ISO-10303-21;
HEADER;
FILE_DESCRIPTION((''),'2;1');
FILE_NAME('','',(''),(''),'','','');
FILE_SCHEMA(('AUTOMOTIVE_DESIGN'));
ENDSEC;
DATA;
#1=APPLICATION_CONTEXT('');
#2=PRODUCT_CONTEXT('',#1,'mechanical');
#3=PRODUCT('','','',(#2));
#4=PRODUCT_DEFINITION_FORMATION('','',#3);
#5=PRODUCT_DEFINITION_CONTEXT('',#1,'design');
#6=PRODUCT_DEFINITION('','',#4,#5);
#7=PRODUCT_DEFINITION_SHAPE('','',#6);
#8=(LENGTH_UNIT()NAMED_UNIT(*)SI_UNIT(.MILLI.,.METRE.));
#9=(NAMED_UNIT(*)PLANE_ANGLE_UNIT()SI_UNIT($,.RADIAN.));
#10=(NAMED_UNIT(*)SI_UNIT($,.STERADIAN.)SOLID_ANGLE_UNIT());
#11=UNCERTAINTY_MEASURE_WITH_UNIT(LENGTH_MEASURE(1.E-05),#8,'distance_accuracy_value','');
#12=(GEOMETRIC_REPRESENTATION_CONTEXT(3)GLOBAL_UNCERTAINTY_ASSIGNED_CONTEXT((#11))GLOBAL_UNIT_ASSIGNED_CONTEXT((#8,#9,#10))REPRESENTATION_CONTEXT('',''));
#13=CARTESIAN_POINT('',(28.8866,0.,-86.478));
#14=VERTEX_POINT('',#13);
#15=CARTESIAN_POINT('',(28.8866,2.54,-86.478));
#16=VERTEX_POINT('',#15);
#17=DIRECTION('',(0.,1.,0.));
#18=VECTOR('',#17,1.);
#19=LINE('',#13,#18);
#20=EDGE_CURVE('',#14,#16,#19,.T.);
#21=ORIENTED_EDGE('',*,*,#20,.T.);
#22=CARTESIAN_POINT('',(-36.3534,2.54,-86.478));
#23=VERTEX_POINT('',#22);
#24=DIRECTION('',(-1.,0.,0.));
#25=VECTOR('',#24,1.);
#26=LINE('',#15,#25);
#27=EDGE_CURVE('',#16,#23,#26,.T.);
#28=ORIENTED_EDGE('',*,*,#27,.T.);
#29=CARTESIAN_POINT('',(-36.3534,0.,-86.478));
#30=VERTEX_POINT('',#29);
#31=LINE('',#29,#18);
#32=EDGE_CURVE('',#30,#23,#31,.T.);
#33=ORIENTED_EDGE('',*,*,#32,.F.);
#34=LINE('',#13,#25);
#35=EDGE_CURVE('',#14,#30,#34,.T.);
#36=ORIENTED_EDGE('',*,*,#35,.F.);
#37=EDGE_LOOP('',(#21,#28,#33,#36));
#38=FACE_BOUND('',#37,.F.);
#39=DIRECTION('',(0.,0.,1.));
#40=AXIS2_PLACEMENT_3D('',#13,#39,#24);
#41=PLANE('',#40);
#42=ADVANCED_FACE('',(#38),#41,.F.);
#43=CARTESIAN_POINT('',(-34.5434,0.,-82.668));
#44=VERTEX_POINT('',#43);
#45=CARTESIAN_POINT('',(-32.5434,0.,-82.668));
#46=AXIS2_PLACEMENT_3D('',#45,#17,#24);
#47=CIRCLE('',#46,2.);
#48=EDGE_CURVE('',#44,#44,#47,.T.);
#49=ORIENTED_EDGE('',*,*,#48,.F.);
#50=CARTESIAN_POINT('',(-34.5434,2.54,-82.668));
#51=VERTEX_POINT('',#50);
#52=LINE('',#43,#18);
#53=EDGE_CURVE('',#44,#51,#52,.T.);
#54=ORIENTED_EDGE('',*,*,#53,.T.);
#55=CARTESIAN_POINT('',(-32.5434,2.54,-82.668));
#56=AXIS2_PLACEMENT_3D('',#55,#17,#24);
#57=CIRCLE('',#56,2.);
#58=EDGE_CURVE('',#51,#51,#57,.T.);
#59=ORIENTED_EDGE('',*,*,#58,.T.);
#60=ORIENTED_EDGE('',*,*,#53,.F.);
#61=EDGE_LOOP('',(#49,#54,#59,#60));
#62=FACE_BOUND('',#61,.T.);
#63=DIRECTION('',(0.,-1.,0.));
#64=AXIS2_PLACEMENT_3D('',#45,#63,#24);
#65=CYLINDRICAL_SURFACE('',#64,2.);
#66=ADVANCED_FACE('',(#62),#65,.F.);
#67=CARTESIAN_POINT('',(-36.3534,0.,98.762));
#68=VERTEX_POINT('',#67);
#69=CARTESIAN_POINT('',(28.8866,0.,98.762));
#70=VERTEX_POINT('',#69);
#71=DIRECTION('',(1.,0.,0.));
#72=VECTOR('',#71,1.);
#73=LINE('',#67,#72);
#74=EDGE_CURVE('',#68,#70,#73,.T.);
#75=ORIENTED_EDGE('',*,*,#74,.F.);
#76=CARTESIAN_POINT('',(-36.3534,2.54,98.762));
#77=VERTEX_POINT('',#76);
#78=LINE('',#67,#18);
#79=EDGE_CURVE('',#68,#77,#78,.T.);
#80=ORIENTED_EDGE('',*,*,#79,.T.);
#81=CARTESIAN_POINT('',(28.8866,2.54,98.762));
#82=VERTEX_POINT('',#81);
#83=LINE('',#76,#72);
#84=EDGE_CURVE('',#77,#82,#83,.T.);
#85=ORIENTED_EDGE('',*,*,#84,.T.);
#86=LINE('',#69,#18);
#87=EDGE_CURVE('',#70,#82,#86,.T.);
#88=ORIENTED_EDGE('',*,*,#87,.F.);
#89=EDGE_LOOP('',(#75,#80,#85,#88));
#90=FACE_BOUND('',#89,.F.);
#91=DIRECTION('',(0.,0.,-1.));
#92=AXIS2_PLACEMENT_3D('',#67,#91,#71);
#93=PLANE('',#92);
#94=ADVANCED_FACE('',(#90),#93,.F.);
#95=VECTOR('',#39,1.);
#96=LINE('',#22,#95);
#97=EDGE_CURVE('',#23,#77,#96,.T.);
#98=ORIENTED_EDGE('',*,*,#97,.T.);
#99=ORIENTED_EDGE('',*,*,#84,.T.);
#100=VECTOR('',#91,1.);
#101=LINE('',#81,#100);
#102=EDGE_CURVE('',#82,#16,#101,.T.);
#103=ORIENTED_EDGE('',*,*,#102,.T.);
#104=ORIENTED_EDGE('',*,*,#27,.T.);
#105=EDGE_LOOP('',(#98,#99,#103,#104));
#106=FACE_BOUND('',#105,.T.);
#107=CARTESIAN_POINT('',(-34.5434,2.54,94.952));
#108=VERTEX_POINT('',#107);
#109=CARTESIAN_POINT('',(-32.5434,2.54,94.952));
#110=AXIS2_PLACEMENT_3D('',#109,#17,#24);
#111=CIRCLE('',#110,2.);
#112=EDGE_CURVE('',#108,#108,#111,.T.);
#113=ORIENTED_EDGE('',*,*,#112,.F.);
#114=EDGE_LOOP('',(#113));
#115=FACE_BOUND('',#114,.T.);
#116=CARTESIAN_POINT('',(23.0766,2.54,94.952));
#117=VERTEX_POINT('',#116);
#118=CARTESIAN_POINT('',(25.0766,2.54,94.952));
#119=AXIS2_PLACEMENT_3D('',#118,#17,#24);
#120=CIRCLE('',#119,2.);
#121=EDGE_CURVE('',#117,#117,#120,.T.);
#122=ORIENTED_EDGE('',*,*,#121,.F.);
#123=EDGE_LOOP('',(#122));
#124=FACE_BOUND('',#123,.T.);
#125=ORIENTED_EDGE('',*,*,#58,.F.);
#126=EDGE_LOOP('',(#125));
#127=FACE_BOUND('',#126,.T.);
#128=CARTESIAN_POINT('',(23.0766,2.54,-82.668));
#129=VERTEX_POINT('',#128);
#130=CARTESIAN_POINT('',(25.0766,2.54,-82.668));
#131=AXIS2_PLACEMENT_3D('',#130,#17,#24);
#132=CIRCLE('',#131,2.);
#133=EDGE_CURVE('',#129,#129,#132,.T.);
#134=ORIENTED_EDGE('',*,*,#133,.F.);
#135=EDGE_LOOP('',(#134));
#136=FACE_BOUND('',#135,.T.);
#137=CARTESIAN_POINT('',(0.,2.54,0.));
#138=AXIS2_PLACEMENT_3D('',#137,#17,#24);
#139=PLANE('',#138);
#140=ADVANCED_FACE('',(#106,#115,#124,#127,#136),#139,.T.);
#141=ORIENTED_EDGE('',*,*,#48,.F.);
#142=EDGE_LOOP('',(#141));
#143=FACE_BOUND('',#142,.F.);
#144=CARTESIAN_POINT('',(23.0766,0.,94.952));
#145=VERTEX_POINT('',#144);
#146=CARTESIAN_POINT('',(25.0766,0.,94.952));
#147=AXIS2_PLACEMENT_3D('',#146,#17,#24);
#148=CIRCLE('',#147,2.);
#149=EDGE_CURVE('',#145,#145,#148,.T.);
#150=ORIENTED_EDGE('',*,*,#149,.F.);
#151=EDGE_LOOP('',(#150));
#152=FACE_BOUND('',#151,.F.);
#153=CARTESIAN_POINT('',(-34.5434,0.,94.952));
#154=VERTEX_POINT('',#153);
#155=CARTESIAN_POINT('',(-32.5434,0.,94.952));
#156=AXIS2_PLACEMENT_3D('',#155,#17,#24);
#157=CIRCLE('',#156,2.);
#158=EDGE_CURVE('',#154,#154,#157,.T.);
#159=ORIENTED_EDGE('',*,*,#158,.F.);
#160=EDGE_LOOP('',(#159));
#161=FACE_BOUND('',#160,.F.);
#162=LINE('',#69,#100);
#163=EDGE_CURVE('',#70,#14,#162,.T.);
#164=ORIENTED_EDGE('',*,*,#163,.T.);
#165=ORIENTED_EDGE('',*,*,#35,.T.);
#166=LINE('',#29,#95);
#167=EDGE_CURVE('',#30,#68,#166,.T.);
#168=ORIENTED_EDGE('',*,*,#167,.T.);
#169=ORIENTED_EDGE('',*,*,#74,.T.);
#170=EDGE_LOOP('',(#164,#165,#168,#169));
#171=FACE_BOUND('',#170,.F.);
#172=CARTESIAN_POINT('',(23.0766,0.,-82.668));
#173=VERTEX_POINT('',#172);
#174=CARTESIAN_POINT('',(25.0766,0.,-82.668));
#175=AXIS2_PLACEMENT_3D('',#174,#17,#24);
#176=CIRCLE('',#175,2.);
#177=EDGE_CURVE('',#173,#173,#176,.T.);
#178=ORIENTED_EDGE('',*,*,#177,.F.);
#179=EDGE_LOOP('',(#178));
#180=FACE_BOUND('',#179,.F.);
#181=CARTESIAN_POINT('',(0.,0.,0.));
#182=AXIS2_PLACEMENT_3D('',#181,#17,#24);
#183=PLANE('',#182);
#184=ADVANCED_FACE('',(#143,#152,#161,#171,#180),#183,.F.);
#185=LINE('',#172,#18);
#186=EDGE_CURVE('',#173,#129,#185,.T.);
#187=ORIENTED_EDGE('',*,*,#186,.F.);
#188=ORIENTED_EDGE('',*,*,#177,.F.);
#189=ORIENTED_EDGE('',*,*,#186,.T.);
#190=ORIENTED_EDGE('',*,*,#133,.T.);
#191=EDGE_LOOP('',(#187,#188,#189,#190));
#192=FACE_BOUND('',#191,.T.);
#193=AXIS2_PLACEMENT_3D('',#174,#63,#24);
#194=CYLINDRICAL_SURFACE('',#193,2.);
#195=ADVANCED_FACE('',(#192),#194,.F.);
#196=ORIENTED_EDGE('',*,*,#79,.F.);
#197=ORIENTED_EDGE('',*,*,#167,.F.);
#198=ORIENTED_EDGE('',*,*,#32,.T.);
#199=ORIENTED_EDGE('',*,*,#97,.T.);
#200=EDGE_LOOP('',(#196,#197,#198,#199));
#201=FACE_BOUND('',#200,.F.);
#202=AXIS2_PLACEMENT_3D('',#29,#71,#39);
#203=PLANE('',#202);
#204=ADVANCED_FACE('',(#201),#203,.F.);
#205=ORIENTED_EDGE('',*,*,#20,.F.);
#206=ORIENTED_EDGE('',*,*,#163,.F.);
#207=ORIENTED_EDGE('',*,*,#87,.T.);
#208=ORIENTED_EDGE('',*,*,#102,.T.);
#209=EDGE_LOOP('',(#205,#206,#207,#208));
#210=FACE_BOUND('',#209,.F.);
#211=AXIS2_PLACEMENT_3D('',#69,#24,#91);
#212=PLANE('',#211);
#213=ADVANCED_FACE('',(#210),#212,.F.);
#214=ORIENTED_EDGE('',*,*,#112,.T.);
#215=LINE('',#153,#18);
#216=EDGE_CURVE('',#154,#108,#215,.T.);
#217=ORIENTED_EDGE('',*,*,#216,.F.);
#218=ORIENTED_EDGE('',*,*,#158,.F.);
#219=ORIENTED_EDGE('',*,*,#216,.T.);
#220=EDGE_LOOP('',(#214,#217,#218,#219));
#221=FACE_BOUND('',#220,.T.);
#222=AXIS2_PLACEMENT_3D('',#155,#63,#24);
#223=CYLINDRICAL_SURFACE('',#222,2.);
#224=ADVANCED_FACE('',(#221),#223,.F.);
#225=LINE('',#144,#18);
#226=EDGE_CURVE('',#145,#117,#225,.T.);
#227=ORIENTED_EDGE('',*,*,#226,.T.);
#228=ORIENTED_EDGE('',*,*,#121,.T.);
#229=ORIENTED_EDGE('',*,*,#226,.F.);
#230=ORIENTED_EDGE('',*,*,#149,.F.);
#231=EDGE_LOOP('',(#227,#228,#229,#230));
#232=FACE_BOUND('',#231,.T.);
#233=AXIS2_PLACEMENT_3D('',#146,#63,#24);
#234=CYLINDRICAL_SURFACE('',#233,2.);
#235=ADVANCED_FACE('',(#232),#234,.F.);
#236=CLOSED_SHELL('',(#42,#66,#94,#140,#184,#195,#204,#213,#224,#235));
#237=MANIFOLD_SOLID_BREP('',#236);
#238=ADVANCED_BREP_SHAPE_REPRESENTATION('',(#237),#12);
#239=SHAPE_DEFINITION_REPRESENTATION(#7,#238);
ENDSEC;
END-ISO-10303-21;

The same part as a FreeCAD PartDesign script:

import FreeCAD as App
import Part
import Sketcher

V = App.Vector

doc = App.newDocument("Part")
params = doc.addObject("Spreadsheet::Sheet", "Params")
for row, (alias, value) in enumerate([
    ("sketch1_diameter", "4 mm"),
    ("sketch1_height", "185.24 mm"),
    ("sketch1_width", "65.24 mm"),
    ("pad1_length", "2.54 mm"),
], start=1):
    params.set(f"A{row}", alias)
    params.set(f"B{row}", "=" + value)
    params.setAlias(f"B{row}", alias)

body = doc.addObject("PartDesign::Body", "Body")

# Sketch on XZ plane
sketch1 = doc.addObject("Sketcher::SketchObject", "Sketch")
body.addObject(sketch1)
sketch1.AttachmentSupport = (doc.XZ_Plane, [""])
sketch1.MapMode = "FlatFace"
sketch1.addGeometry(Part.LineSegment(V(-36.3534, -86.478, 0), V(-36.3534, 98.762, 0)), False)
sketch1.addGeometry(Part.LineSegment(V(-36.3534, 98.762, 0), V(28.8866, 98.762, 0)), False)
sketch1.addGeometry(Part.LineSegment(V(28.8866, 98.762, 0), V(28.8866, -86.478, 0)), False)
sketch1.addGeometry(Part.LineSegment(V(28.8866, -86.478, 0), V(-36.3534, -86.478, 0)), False)
sketch1.addGeometry(Part.Circle(V(25.0766, -82.668, 0), V(0, 0, 1), 2), False)
sketch1.addGeometry(Part.Circle(V(-32.5434, -82.668, 0), V(0, 0, 1), 2), False)
sketch1.addGeometry(Part.Circle(V(25.0766, 94.952, 0), V(0, 0, 1), 2), False)
sketch1.addGeometry(Part.Circle(V(-32.5434, 94.952, 0), V(0, 0, 1), 2), False)
sketch1.addConstraint(Sketcher.Constraint("Coincident", 0, 2, 1, 1))
sketch1.addConstraint(Sketcher.Constraint("Coincident", 1, 2, 2, 1))
sketch1.addConstraint(Sketcher.Constraint("Coincident", 2, 2, 3, 1))
sketch1.addConstraint(Sketcher.Constraint("Coincident", 3, 2, 0, 1))
sketch1.addConstraint(Sketcher.Constraint("Vertical", 0))
sketch1.addConstraint(Sketcher.Constraint("Horizontal", 1))
sketch1.addConstraint(Sketcher.Constraint("Vertical", 2))
sketch1.addConstraint(Sketcher.Constraint("Horizontal", 3))
sketch1.addConstraint(Sketcher.Constraint("Equal", 4, 5))
sketch1.addConstraint(Sketcher.Constraint("Equal", 5, 6))
sketch1.addConstraint(Sketcher.Constraint("Equal", 6, 7))
sketch1.addConstraint(Sketcher.Constraint("Horizontal", 4, 3, 5, 3))
sketch1.addConstraint(Sketcher.Constraint("Horizontal", 6, 3, 7, 3))
sketch1.addConstraint(Sketcher.Constraint("Vertical", 4, 3, 6, 3))
sketch1.addConstraint(Sketcher.Constraint("Vertical", 5, 3, 7, 3))
sketch1.addConstraint(Sketcher.Constraint("Diameter", 4, 4.0))
sketch1.addConstraint(Sketcher.Constraint("DistanceY", 0, 1, 0, 2, 185.24))
sketch1.addConstraint(Sketcher.Constraint("DistanceX", 0, 2, 7, 3, 3.81))
sketch1.addConstraint(Sketcher.Constraint("DistanceY", 7, 3, 0, 2, 3.81))
sketch1.addConstraint(Sketcher.Constraint("DistanceX", 6, 3, 1, 2, 3.81))
sketch1.addConstraint(Sketcher.Constraint("DistanceY", 2, 2, 4, 3, 3.81))
sketch1.addConstraint(Sketcher.Constraint("DistanceX", 1, 1, 1, 2, 65.24))
sketch1.addConstraint(Sketcher.Constraint("DistanceY", 4, 3, -1, 1, 82.668))
sketch1.addConstraint(Sketcher.Constraint("DistanceX", -1, 1, 4, 3, 25.0766))
sketch1.setExpression("Constraints[15]", "Params.sketch1_diameter")
sketch1.setExpression("Constraints[16]", "Params.sketch1_height")
sketch1.setExpression("Constraints[21]", "Params.sketch1_width")
pad1 = doc.addObject("PartDesign::Pad", "Pad")
body.addObject(pad1)
pad1.Profile = sketch1
pad1.setExpression("Length", "Params.pad1_length")
pad1.Reversed = True

doc.recompute()
